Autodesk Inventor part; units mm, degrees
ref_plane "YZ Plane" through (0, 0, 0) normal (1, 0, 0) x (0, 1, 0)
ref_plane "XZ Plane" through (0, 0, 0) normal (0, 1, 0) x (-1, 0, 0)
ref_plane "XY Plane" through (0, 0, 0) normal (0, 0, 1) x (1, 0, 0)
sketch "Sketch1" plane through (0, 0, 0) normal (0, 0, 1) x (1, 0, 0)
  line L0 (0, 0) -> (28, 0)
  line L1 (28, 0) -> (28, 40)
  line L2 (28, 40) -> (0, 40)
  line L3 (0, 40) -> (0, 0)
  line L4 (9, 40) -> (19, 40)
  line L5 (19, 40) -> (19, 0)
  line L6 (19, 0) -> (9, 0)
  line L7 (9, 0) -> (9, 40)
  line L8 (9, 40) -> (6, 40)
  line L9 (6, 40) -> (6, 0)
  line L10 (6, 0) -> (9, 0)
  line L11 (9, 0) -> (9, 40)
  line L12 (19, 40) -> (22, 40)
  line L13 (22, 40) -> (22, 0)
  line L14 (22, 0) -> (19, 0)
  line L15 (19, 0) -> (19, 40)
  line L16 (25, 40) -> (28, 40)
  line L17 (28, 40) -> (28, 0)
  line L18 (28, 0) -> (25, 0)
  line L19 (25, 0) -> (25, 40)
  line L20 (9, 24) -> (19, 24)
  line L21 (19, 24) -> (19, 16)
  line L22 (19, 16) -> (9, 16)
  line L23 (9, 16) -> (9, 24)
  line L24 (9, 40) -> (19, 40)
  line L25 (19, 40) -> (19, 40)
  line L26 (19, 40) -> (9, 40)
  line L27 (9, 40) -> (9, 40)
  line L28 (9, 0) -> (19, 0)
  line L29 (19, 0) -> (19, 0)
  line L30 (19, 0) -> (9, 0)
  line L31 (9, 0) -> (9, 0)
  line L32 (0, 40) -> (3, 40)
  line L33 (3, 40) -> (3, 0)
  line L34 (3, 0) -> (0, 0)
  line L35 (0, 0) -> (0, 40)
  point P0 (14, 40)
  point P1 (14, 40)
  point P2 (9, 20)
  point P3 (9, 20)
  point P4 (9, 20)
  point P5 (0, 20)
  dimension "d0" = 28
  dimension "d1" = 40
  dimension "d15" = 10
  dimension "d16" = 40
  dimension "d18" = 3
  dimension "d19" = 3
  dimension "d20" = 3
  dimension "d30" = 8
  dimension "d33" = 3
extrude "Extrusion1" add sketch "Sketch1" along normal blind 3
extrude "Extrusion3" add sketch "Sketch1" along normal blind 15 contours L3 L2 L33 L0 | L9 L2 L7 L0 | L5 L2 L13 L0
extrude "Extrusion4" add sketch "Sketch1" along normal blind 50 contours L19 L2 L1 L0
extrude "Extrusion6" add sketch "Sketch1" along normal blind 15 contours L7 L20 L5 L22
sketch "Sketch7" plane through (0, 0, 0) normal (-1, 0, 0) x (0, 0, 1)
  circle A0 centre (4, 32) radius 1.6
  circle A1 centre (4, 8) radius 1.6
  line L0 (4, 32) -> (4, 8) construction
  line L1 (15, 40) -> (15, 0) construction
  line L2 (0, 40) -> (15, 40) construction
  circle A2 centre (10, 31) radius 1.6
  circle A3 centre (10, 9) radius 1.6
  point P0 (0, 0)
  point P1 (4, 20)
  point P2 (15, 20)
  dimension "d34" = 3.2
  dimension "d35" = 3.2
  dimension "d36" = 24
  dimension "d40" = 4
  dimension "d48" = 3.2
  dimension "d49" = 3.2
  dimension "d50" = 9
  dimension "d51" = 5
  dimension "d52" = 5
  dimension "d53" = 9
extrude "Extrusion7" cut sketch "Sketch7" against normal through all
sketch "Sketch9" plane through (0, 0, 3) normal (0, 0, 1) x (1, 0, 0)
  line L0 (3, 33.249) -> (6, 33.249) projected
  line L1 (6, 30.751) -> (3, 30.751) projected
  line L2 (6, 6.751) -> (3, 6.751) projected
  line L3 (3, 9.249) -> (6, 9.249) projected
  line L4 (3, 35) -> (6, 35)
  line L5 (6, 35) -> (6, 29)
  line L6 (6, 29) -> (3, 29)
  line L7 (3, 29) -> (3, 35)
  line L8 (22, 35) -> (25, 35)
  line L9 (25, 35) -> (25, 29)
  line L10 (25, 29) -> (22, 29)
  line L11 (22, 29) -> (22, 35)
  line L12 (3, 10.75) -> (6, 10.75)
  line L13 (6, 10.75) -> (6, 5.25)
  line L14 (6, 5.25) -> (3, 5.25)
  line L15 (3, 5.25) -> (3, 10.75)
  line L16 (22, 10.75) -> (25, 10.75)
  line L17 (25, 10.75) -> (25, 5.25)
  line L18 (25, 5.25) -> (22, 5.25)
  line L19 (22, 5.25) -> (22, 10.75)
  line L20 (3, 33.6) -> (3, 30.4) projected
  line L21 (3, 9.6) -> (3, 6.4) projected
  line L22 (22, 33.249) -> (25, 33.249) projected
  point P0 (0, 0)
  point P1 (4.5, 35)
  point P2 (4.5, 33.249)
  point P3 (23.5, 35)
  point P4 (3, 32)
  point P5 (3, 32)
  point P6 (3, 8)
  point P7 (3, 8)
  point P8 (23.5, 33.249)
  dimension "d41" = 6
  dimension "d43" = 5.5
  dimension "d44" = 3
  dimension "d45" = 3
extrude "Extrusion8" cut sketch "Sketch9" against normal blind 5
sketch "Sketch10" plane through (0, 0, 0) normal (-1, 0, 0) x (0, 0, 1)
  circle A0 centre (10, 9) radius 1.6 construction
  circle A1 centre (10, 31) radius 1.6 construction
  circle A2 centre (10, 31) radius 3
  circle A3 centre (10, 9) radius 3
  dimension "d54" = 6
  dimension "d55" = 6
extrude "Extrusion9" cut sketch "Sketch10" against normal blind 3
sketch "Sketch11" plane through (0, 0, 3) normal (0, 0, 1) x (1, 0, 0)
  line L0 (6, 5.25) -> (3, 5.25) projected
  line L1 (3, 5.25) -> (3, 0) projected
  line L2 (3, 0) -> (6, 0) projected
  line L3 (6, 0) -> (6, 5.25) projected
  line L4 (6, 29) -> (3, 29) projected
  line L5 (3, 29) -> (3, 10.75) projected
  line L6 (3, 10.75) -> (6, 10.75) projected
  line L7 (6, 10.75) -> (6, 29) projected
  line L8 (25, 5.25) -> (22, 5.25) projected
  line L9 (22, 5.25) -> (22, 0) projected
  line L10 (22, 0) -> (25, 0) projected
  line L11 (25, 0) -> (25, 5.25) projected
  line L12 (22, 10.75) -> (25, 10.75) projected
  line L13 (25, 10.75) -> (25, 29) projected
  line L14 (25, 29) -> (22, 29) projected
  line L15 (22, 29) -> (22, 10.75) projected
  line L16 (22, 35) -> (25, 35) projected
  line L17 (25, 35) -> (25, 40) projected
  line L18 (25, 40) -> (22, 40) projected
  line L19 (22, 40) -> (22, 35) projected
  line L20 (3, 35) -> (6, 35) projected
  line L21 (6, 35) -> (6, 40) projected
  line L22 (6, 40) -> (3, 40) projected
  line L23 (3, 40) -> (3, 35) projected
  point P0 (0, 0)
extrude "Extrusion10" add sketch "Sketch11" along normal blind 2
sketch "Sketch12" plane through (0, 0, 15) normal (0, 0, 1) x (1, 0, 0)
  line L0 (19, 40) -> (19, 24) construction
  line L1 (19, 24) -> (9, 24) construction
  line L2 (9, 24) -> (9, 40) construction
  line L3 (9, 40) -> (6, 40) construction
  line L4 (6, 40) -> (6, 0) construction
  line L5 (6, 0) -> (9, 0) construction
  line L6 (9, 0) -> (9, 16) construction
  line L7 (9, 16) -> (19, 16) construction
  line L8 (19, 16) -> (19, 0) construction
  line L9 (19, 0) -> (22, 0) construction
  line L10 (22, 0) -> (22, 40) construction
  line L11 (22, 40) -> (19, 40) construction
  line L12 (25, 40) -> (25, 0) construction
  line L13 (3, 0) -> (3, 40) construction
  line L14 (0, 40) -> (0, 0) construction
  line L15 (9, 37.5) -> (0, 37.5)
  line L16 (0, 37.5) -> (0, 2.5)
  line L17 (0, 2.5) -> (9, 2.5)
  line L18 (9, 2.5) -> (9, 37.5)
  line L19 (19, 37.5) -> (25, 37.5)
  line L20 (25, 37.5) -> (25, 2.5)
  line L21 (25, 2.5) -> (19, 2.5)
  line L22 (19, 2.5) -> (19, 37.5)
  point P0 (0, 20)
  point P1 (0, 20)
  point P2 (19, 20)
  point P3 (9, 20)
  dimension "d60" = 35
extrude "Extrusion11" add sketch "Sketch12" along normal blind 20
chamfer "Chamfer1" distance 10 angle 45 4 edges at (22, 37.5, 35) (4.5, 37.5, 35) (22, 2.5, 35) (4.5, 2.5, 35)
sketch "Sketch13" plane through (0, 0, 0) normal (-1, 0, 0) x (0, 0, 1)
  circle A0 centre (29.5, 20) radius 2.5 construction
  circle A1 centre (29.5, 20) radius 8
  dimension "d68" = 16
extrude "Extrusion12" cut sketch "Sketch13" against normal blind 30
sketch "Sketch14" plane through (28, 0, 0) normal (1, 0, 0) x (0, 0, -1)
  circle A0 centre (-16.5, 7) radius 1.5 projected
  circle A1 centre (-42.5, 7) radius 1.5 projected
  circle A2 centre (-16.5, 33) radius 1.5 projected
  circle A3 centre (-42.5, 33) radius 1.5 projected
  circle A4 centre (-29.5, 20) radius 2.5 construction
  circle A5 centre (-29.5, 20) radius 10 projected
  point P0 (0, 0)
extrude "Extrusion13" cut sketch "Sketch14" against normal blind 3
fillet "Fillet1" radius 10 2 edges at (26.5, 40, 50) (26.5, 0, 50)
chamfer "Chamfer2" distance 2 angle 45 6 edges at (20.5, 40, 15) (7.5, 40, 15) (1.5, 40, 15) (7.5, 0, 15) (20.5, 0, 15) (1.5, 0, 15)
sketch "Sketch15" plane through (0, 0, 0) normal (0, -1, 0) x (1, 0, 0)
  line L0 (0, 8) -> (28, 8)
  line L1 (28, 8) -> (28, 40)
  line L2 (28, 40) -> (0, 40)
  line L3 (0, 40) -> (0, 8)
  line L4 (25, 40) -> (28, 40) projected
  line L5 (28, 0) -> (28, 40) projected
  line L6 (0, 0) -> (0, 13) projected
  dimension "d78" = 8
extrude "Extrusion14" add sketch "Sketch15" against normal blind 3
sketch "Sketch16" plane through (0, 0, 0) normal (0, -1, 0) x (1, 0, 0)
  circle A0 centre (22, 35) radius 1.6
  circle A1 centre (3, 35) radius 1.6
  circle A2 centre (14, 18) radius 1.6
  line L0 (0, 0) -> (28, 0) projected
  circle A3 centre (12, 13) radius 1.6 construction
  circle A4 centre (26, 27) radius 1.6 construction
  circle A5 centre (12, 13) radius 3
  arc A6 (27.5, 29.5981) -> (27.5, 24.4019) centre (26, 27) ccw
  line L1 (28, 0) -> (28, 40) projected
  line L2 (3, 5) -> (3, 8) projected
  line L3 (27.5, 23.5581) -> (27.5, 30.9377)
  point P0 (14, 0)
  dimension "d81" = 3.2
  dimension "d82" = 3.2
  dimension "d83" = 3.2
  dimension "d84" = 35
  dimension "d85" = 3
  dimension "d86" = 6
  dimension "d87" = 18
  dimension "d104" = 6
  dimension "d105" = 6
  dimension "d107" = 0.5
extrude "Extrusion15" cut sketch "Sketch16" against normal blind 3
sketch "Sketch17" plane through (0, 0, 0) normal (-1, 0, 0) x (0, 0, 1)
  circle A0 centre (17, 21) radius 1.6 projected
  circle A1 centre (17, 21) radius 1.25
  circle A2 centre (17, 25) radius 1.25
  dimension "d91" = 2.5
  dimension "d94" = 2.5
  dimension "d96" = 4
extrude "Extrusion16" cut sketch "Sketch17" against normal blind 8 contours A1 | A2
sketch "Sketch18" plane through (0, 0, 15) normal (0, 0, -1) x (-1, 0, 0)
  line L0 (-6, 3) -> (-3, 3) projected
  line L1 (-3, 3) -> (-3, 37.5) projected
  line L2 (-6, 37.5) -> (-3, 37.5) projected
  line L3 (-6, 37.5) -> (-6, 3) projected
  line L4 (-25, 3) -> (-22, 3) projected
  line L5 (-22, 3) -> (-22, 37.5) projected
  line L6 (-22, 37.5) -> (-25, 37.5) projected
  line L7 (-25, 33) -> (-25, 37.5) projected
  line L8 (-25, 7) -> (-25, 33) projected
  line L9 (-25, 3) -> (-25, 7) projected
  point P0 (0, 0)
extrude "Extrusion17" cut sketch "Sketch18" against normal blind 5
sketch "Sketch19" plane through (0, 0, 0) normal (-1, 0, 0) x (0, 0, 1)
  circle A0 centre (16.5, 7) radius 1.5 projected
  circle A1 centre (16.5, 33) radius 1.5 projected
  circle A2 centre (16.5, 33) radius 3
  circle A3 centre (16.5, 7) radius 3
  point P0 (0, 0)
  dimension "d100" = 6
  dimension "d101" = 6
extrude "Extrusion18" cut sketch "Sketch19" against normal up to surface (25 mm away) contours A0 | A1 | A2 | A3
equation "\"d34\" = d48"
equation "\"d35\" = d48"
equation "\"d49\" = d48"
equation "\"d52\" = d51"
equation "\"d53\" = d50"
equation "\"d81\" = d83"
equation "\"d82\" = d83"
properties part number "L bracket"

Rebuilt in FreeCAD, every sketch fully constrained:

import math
import FreeCAD as App
import Part
import Sketcher
Q = App.Units.Quantity


def edges_at(feature, points):
    """Names of the edges that pass closest to the given points."""
    edges = feature.Shape.Edges
    near = lambda p: min(range(len(edges)), key=lambda i: edges[i].distToShape(Part.Vertex(*p))[0])
    return sorted({f"Edge{near(p) + 1}" for p in points})

doc = App.newDocument("Part")
body = doc.addObject("PartDesign::Body", "Body")

# Sketch on XY plane
sketch1 = doc.addObject("Sketcher::SketchObject", "Sketch")
body.addObject(sketch1)
sketch1.AttachmentSupport = (doc.XY_Plane, [""])
sketch1.MapMode = "FlatFace"
sketch1.addGeometry(Part.LineSegment(App.Vector(0, 40, 0), App.Vector(0, 0, 0)), False)
sketch1.addGeometry(Part.LineSegment(App.Vector(0, 0, 0), App.Vector(28, 0, 0)), False)
sketch1.addGeometry(Part.LineSegment(App.Vector(28, 0, 0), App.Vector(28, 40, 0)), False)
sketch1.addGeometry(Part.LineSegment(App.Vector(28, 40, 0), App.Vector(0, 40, 0)), False)
sketch1.addConstraint(Sketcher.Constraint("Coincident", 0, 2, 1, 1))
sketch1.addConstraint(Sketcher.Constraint("Coincident", 1, 2, 2, 1))
sketch1.addConstraint(Sketcher.Constraint("Coincident", 2, 2, 3, 1))
sketch1.addConstraint(Sketcher.Constraint("Coincident", 3, 2, 0, 1))
sketch1.addConstraint(Sketcher.Constraint("Vertical", 0))
sketch1.addConstraint(Sketcher.Constraint("Horizontal", 1))
sketch1.addConstraint(Sketcher.Constraint("Vertical", 2))
sketch1.addConstraint(Sketcher.Constraint("Horizontal", 3))
sketch1.addConstraint(Sketcher.Constraint("Coincident", 0, 2, -1, 1))
sketch1.addConstraint(Sketcher.Constraint("DistanceX", 1, 1, 1, 2, Q("28 mm")))
sketch1.addConstraint(Sketcher.Constraint("DistanceY", 0, 2, 0, 1, Q("40 mm")))
pad1 = doc.addObject("PartDesign::Pad", "Pad")
body.addObject(pad1)
pad1.Profile = sketch1
pad1.Length = 3

# Sketch on XY plane
sketch2 = doc.addObject("Sketcher::SketchObject", "Sketch001")
body.addObject(sketch2)
sketch2.AttachmentSupport = (doc.XY_Plane, [""])
sketch2.MapMode = "FlatFace"
sketch2.addGeometry(Part.LineSegment(App.Vector(0, 40, 0), App.Vector(0, 0, 0)), False)
sketch2.addGeometry(Part.LineSegment(App.Vector(0, 0, 0), App.Vector(3, 0, 0)), False)
sketch2.addGeometry(Part.LineSegment(App.Vector(3, 0, 0), App.Vector(3, 40, 0)), False)
sketch2.addGeometry(Part.LineSegment(App.Vector(3, 40, 0), App.Vector(0, 40, 0)), False)
sketch2.addGeometry(Part.LineSegment(App.Vector(6, 40, 0), App.Vector(6, 0, 0)), False)
sketch2.addGeometry(Part.LineSegment(App.Vector(6, 0, 0), App.Vector(9, 0, 0)), False)
sketch2.addGeometry(Part.LineSegment(App.Vector(9, 0, 0), App.Vector(9, 40, 0)), False)
sketch2.addGeometry(Part.LineSegment(App.Vector(9, 40, 0), App.Vector(6, 40, 0)), False)
sketch2.addGeometry(Part.LineSegment(App.Vector(19, 40, 0), App.Vector(19, 0, 0)), False)
sketch2.addGeometry(Part.LineSegment(App.Vector(19, 0, 0), App.Vector(22, 0, 0)), False)
sketch2.addGeometry(Part.LineSegment(App.Vector(22, 0, 0), App.Vector(22, 40, 0)), False)
sketch2.addGeometry(Part.LineSegment(App.Vector(22, 40, 0), App.Vector(19, 40, 0)), False)
sketch2.addConstraint(Sketcher.Constraint("Coincident", 0, 2, 1, 1))
sketch2.addConstraint(Sketcher.Constraint("Coincident", 1, 2, 2, 1))
sketch2.addConstraint(Sketcher.Constraint("Coincident", 2, 2, 3, 1))
sketch2.addConstraint(Sketcher.Constraint("Coincident", 3, 2, 0, 1))
sketch2.addConstraint(Sketcher.Constraint("Coincident", 4, 2, 5, 1))
sketch2.addConstraint(Sketcher.Constraint("Coincident", 5, 2, 6, 1))
sketch2.addConstraint(Sketcher.Constraint("Coincident", 6, 2, 7, 1))
sketch2.addConstraint(Sketcher.Constraint("Coincident", 7, 2, 4, 1))
sketch2.addConstraint(Sketcher.Constraint("Coincident", 8, 2, 9, 1))
sketch2.addConstraint(Sketcher.Constraint("Coincident", 9, 2, 10, 1))
sketch2.addConstraint(Sketcher.Constraint("Coincident", 10, 2, 11, 1))
sketch2.addConstraint(Sketcher.Constraint("Coincident", 11, 2, 8, 1))
sketch2.addConstraint(Sketcher.Constraint("Vertical", 0))
sketch2.addConstraint(Sketcher.Constraint("Horizontal", 1))
sketch2.addConstraint(Sketcher.Constraint("Vertical", 2))
sketch2.addConstraint(Sketcher.Constraint("Horizontal", 3))
sketch2.addConstraint(Sketcher.Constraint("Vertical", 4))
sketch2.addConstraint(Sketcher.Constraint("Horizontal", 5))
sketch2.addConstraint(Sketcher.Constraint("Vertical", 6))
sketch2.addConstraint(Sketcher.Constraint("Horizontal", 7))
sketch2.addConstraint(Sketcher.Constraint("Vertical", 8))
sketch2.addConstraint(Sketcher.Constraint("Horizontal", 9))
sketch2.addConstraint(Sketcher.Constraint("Vertical", 10))
sketch2.addConstraint(Sketcher.Constraint("Horizontal", 11))
sketch2.addConstraint(Sketcher.Constraint("Coincident", 0, 2, -1, 1))
sketch2.addConstraint(Sketcher.Constraint("PointOnObject", 4, 2, -1))
sketch2.addConstraint(Sketcher.Constraint("PointOnObject", 8, 2, -1))
sketch2.addConstraint(Sketcher.Constraint("Horizontal", 3, 2, 6, 2))
sketch2.addConstraint(Sketcher.Constraint("Horizontal", 7, 2, 10, 2))
sketch2.addConstraint(Sketcher.Constraint("Equal", 3, 5))
sketch2.addConstraint(Sketcher.Constraint("Equal", 7, 9))
sketch2.addConstraint(Sketcher.Constraint("DistanceX", 1, 1, 1, 2, Q("3 mm")))
sketch2.addConstraint(Sketcher.Constraint("DistanceY", 0, 2, 0, 1, Q("40 mm")))
sketch2.addConstraint(Sketcher.Constraint("DistanceX", 1, 2, 4, 2, Q("3 mm")))
sketch2.addConstraint(Sketcher.Constraint("DistanceX", 5, 2, 8, 2, Q("10 mm")))
pad2 = doc.addObject("PartDesign::Pad", "Pad001")
body.addObject(pad2)
pad2.Profile = sketch2
pad2.Length = 15

# Sketch on XY plane
sketch3 = doc.addObject("Sketcher::SketchObject", "Sketch002")
body.addObject(sketch3)
sketch3.AttachmentSupport = (doc.XY_Plane, [""])
sketch3.MapMode = "FlatFace"
sketch3.addGeometry(Part.LineSegment(App.Vector(25, 40, 0), App.Vector(25, 0, 0)), False)
sketch3.addGeometry(Part.LineSegment(App.Vector(25, 0, 0), App.Vector(28, 0, 0)), False)
sketch3.addGeometry(Part.LineSegment(App.Vector(28, 0, 0), App.Vector(28, 40, 0)), False)
sketch3.addGeometry(Part.LineSegment(App.Vector(28, 40, 0), App.Vector(25, 40, 0)), False)
sketch3.addConstraint(Sketcher.Constraint("Coincident", 0, 2, 1, 1))
sketch3.addConstraint(Sketcher.Constraint("Coincident", 1, 2, 2, 1))
sketch3.addConstraint(Sketcher.Constraint("Coincident", 2, 2, 3, 1))
sketch3.addConstraint(Sketcher.Constraint("Coincident", 3, 2, 0, 1))
sketch3.addConstraint(Sketcher.Constraint("Vertical", 0))
sketch3.addConstraint(Sketcher.Constraint("Horizontal", 1))
sketch3.addConstraint(Sketcher.Constraint("Vertical", 2))
sketch3.addConstraint(Sketcher.Constraint("Horizontal", 3))
sketch3.addConstraint(Sketcher.Constraint("PointOnObject", 0, 2, -1))
sketch3.addConstraint(Sketcher.Constraint("DistanceX", 1, 1, 1, 2, Q("3 mm")))
sketch3.addConstraint(Sketcher.Constraint("DistanceY", 0, 2, 0, 1, Q("40 mm")))
sketch3.addConstraint(Sketcher.Constraint("DistanceX", -1, 1, 1, 2, Q("28 mm")))
pad3 = doc.addObject("PartDesign::Pad", "Pad002")
body.addObject(pad3)
pad3.Profile = sketch3
pad3.Length = 50

# Sketch on XY plane
sketch4 = doc.addObject("Sketcher::SketchObject", "Sketch003")
body.addObject(sketch4)
sketch4.AttachmentSupport = (doc.XY_Plane, [""])
sketch4.MapMode = "FlatFace"
sketch4.addGeometry(Part.LineSegment(App.Vector(9, 24, 0), App.Vector(9, 16, 0)), False)
sketch4.addGeometry(Part.LineSegment(App.Vector(9, 16, 0), App.Vector(19, 16, 0)), False)
sketch4.addGeometry(Part.LineSegment(App.Vector(19, 16, 0), App.Vector(19, 24, 0)), False)
sketch4.addGeometry(Part.LineSegment(App.Vector(19, 24, 0), App.Vector(9, 24, 0)), False)
sketch4.addConstraint(Sketcher.Constraint("Coincident", 0, 2, 1, 1))
sketch4.addConstraint(Sketcher.Constraint("Coincident", 1, 2, 2, 1))
sketch4.addConstraint(Sketcher.Constraint("Coincident", 2, 2, 3, 1))
sketch4.addConstraint(Sketcher.Constraint("Coincident", 3, 2, 0, 1))
sketch4.addConstraint(Sketcher.Constraint("Vertical", 0))
sketch4.addConstraint(Sketcher.Constraint("Horizontal", 1))
sketch4.addConstraint(Sketcher.Constraint("Vertical", 2))
sketch4.addConstraint(Sketcher.Constraint("Horizontal", 3))
sketch4.addConstraint(Sketcher.Constraint("DistanceX", 1, 1, 1, 2, Q("10 mm")))
sketch4.addConstraint(Sketcher.Constraint("DistanceY", 0, 2, 0, 1, Q("8 mm")))
sketch4.addConstraint(Sketcher.Constraint("DistanceX", -1, 1, 0, 2, Q("9 mm")))
sketch4.addConstraint(Sketcher.Constraint("DistanceY", -1, 1, 0, 2, Q("16 mm")))
pad4 = doc.addObject("PartDesign::Pad", "Pad003")
body.addObject(pad4)
pad4.Profile = sketch4
pad4.Length = 15

# Sketch on YZ plane
sketch5 = doc.addObject("Sketcher::SketchObject", "Sketch004")
body.addObject(sketch5)
sketch5.AttachmentSupport = (doc.YZ_Plane, [""])
sketch5.MapMode = "FlatFace"
sketch5.addGeometry(Part.Circle(App.Vector(32, 4, 0), App.Vector(0, 0, 1), 1.6), False)
sketch5.addGeometry(Part.Circle(App.Vector(8, 4, 0), App.Vector(0, 0, 1), 1.6), False)
sketch5.addGeometry(Part.Circle(App.Vector(31, 10, 0), App.Vector(0, 0, 1), 1.6), False)
sketch5.addGeometry(Part.Circle(App.Vector(9, 10, 0), App.Vector(0, 0, 1), 1.6), False)
sketch5.addConstraint(Sketcher.Constraint("Equal", 0, 1))
sketch5.addConstraint(Sketcher.Constraint("Equal", 1, 2))
sketch5.addConstraint(Sketcher.Constraint("Equal", 2, 3))
sketch5.addConstraint(Sketcher.Constraint("Horizontal", 0, 3, 1, 3))
sketch5.addConstraint(Sketcher.Constraint("Horizontal", 2, 3, 3, 3))
sketch5.addConstraint(Sketcher.Constraint("Diameter", 0, Q("3.2 mm")))
sketch5.addConstraint(Sketcher.Constraint("DistanceY", -1, 1, 0, 3, Q("4 mm")))
sketch5.addConstraint(Sketcher.Constraint("DistanceX", -1, 1, 3, 3, Q("9 mm")))
sketch5.addConstraint(Sketcher.Constraint("DistanceX", 1, 3, 0, 3, Q("24 mm")))
sketch5.addConstraint(Sketcher.Constraint("DistanceX", -1, 1, 0, 3, Q("32 mm")))
sketch5.addConstraint(Sketcher.Constraint("DistanceX", -1, 1, 2, 3, Q("31 mm")))
sketch5.addConstraint(Sketcher.Constraint("DistanceY", -1, 1, 2, 3, Q("10 mm")))
pocket1 = doc.addObject("PartDesign::Pocket", "Pocket")
body.addObject(pocket1)
pocket1.Profile = sketch5
pocket1.Type = "ThroughAll"
pocket1.Reversed = True

# Sketch on XY plane
sketch6 = doc.addObject("Sketcher::SketchObject", "Sketch005")
body.addObject(sketch6)
sketch6.AttachmentSupport = (doc.XY_Plane, [""])
sketch6.MapMode = "FlatFace"
sketch6.AttachmentOffset = App.Placement(App.Vector(0, 0, 3), App.Rotation())
sketch6.addGeometry(Part.LineSegment(App.Vector(3, 29, 0), App.Vector(6, 29, 0)), False)
sketch6.addGeometry(Part.LineSegment(App.Vector(6, 29, 0), App.Vector(6, 35, 0)), False)
sketch6.addGeometry(Part.LineSegment(App.Vector(6, 35, 0), App.Vector(3, 35, 0)), False)
sketch6.addGeometry(Part.LineSegment(App.Vector(3, 35, 0), App.Vector(3, 29, 0)), False)
sketch6.addGeometry(Part.LineSegment(App.Vector(6, 5.2, 0), App.Vector(6, 10.8, 0)), False)
sketch6.addGeometry(Part.LineSegment(App.Vector(6, 10.8, 0), App.Vector(3, 10.8, 0)), False)
sketch6.addGeometry(Part.LineSegment(App.Vector(3, 10.8, 0), App.Vector(3, 5.2, 0)), False)
sketch6.addGeometry(Part.LineSegment(App.Vector(3, 5.2, 0), App.Vector(6, 5.2, 0)), False)
sketch6.addGeometry(Part.LineSegment(App.Vector(25, 35, 0), App.Vector(22, 35, 0)), False)
sketch6.addGeometry(Part.LineSegment(App.Vector(22, 35, 0), App.Vector(22, 29, 0)), False)
sketch6.addGeometry(Part.LineSegment(App.Vector(22, 29, 0), App.Vector(25, 29, 0)), False)
sketch6.addGeometry(Part.LineSegment(App.Vector(25, 29, 0), App.Vector(25, 35, 0)), False)
sketch6.addGeometry(Part.LineSegment(App.Vector(25, 10.8, 0), App.Vector(22, 10.8, 0)), False)
sketch6.addGeometry(Part.LineSegment(App.Vector(22, 10.8, 0), App.Vector(22, 5.2, 0)), False)
sketch6.addGeometry(Part.LineSegment(App.Vector(22, 5.2, 0), App.Vector(25, 5.2, 0)), False)
sketch6.addGeometry(Part.LineSegment(App.Vector(25, 5.2, 0), App.Vector(25, 10.8, 0)), False)
sketch6.addConstraint(Sketcher.Constraint("Coincident", 0, 2, 1, 1))
sketch6.addConstraint(Sketcher.Constraint("Coincident", 1, 2, 2, 1))
sketch6.addConstraint(Sketcher.Constraint("Coincident", 2, 2, 3, 1))
sketch6.addConstraint(Sketcher.Constraint("Coincident", 3, 2, 0, 1))
sketch6.addConstraint(Sketcher.Constraint("Coincident", 4, 2, 5, 1))
sketch6.addConstraint(Sketcher.Constraint("Coincident", 5, 2, 6, 1))
sketch6.addConstraint(Sketcher.Constraint("Coincident", 6, 2, 7, 1))
sketch6.addConstraint(Sketcher.Constraint("Coincident", 7, 2, 4, 1))
sketch6.addConstraint(Sketcher.Constraint("Coincident", 8, 2, 9, 1))
sketch6.addConstraint(Sketcher.Constraint("Coincident", 9, 2, 10, 1))
sketch6.addConstraint(Sketcher.Constraint("Coincident", 10, 2, 11, 1))
sketch6.addConstraint(Sketcher.Constraint("Coincident", 11, 2, 8, 1))
sketch6.addConstraint(Sketcher.Constraint("Coincident", 12, 2, 13, 1))
sketch6.addConstraint(Sketcher.Constraint("Coincident", 13, 2, 14, 1))
sketch6.addConstraint(Sketcher.Constraint("Coincident", 14, 2, 15, 1))
sketch6.addConstraint(Sketcher.Constraint("Coincident", 15, 2, 12, 1))
sketch6.addConstraint(Sketcher.Constraint("Horizontal", 0))
sketch6.addConstraint(Sketcher.Constraint("Vertical", 1))
sketch6.addConstraint(Sketcher.Constraint("Horizontal", 2))
sketch6.addConstraint(Sketcher.Constraint("Vertical", 3))
sketch6.addConstraint(Sketcher.Constraint("Vertical", 4))
sketch6.addConstraint(Sketcher.Constraint("Horizontal", 5))
sketch6.addConstraint(Sketcher.Constraint("Vertical", 6))
sketch6.addConstraint(Sketcher.Constraint("Horizontal", 7))
sketch6.addConstraint(Sketcher.Constraint("Horizontal", 8))
sketch6.addConstraint(Sketcher.Constraint("Vertical", 9))
sketch6.addConstraint(Sketcher.Constraint("Horizontal", 10))
sketch6.addConstraint(Sketcher.Constraint("Vertical", 11))
sketch6.addConstraint(Sketcher.Constraint("Horizontal", 12))
sketch6.addConstraint(Sketcher.Constraint("Vertical", 13))
sketch6.addConstraint(Sketcher.Constraint("Horizontal", 14))
sketch6.addConstraint(Sketcher.Constraint("Vertical", 15))
sketch6.addConstraint(Sketcher.Constraint("Horizontal", 2, 2, 8, 2))
sketch6.addConstraint(Sketcher.Constraint("Horizontal", 3, 2, 9, 2))
sketch6.addConstraint(Sketcher.Constraint("Horizontal", 5, 2, 12, 2))
sketch6.addConstraint(Sketcher.Constraint("Horizontal", 7, 2, 13, 2))
sketch6.addConstraint(Sketcher.Constraint("Vertical", 1, 2, 4, 2))
sketch6.addConstraint(Sketcher.Constraint("Vertical", 3, 2, 5, 2))
sketch6.addConstraint(Sketcher.Constraint("Vertical", 9, 2, 12, 2))
sketch6.addConstraint(Sketcher.Constraint("Vertical", 11, 2, 14, 2))
sketch6.addConstraint(Sketcher.Constraint("Equal", 7, 8))
sketch6.addConstraint(Sketcher.Constraint("DistanceX", 0, 1, 0, 2, Q("3 mm")))
sketch6.addConstraint(Sketcher.Constraint("DistanceY", 1, 1, 1, 2, Q("6 mm")))
sketch6.addConstraint(Sketcher.Constraint("DistanceY", 4, 1, 4, 2, Q("5.5 mm")))
sketch6.addConstraint(Sketcher.Constraint("DistanceX", -1, 1, 0, 2, Q("6 mm")))
sketch6.addConstraint(Sketcher.Constraint("DistanceY", -1, 1, 0, 2, Q("29 mm")))
sketch6.addConstraint(Sketcher.Constraint("DistanceX", -1, 1, 8, 2, Q("22 mm")))
sketch6.addConstraint(Sketcher.Constraint("DistanceY", -1, 1, 4, 2, Q("10.75 mm")))
pocket2 = doc.addObject("PartDesign::Pocket", "Pocket001")
body.addObject(pocket2)
pocket2.Profile = sketch6
pocket2.Length = 5

# Sketch on YZ plane
sketch7 = doc.addObject("Sketcher::SketchObject", "Sketch006")
body.addObject(sketch7)
sketch7.AttachmentSupport = (doc.YZ_Plane, [""])
sketch7.MapMode = "FlatFace"
sketch7.addGeometry(Part.Circle(App.Vector(31, 10, 0), App.Vector(0, 0, 1), 3), False)
sketch7.addGeometry(Part.Circle(App.Vector(9, 10, 0), App.Vector(0, 0, 1), 3), False)
sketch7.addConstraint(Sketcher.Constraint("Equal", 0, 1))
sketch7.addConstraint(Sketcher.Constraint("Horizontal", 0, 3, 1, 3))
sketch7.addConstraint(Sketcher.Constraint("Diameter", 0, Q("6 mm")))
sketch7.addConstraint(Sketcher.Constraint("DistanceX", -1, 1, 0, 3, Q("31 mm")))
sketch7.addConstraint(Sketcher.Constraint("DistanceY", -1, 1, 0, 3, Q("10 mm")))
sketch7.addConstraint(Sketcher.Constraint("DistanceX", -1, 1, 1, 3, Q("9 mm")))
pocket3 = doc.addObject("PartDesign::Pocket", "Pocket002")
body.addObject(pocket3)
pocket3.Profile = sketch7
pocket3.Length = 3
pocket3.Reversed = True

# Sketch on XY plane
sketch8 = doc.addObject("Sketcher::SketchObject", "Sketch007")
body.addObject(sketch8)
sketch8.AttachmentSupport = (doc.XY_Plane, [""])
sketch8.MapMode = "FlatFace"
sketch8.AttachmentOffset = App.Placement(App.Vector(0, 0, 3), App.Rotation())
sketch8.addGeometry(Part.LineSegment(App.Vector(6, 0, 0), App.Vector(6, 5.2, 0)), False)
sketch8.addGeometry(Part.LineSegment(App.Vector(6, 5.2, 0), App.Vector(3, 5.2, 0)), False)
sketch8.addGeometry(Part.LineSegment(App.Vector(3, 5.2, 0), App.Vector(3, 0, 0)), False)
sketch8.addGeometry(Part.LineSegment(App.Vector(3, 0, 0), App.Vector(6, 0, 0)), False)
sketch8.addGeometry(Part.LineSegment(App.Vector(6, 10.8, 0), App.Vector(6, 29, 0)), False)
sketch8.addGeometry(Part.LineSegment(App.Vector(6, 29, 0), App.Vector(3, 29, 0)), False)
sketch8.addGeometry(Part.LineSegment(App.Vector(3, 29, 0), App.Vector(3, 10.8, 0)), False)
sketch8.addGeometry(Part.LineSegment(App.Vector(3, 10.8, 0), App.Vector(6, 10.8, 0)), False)
sketch8.addGeometry(Part.LineSegment(App.Vector(25, 0, 0), App.Vector(25, 5.2, 0)), False)
sketch8.addGeometry(Part.LineSegment(App.Vector(25, 5.2, 0), App.Vector(22, 5.2, 0)), False)
sketch8.addGeometry(Part.LineSegment(App.Vector(22, 5.2, 0), App.Vector(22, 0, 0)), False)
sketch8.addGeometry(Part.LineSegment(App.Vector(22, 0, 0), App.Vector(25, 0, 0)), False)
sketch8.addGeometry(Part.LineSegment(App.Vector(22, 29, 0), App.Vector(22, 10.8, 0)), False)
sketch8.addGeometry(Part.LineSegment(App.Vector(22, 10.8, 0), App.Vector(25, 10.8, 0)), False)
sketch8.addGeometry(Part.LineSegment(App.Vector(25, 10.8, 0), App.Vector(25, 29, 0)), False)
sketch8.addGeometry(Part.LineSegment(App.Vector(25, 29, 0), App.Vector(22, 29, 0)), False)
sketch8.addGeometry(Part.LineSegment(App.Vector(22, 40, 0), App.Vector(22, 35, 0)), False)
sketch8.addGeometry(Part.LineSegment(App.Vector(22, 35, 0), App.Vector(25, 35, 0)), False)
sketch8.addGeometry(Part.LineSegment(App.Vector(25, 35, 0), App.Vector(25, 40, 0)), False)
sketch8.addGeometry(Part.LineSegment(App.Vector(25, 40, 0), App.Vector(22, 40, 0)), False)
sketch8.addGeometry(Part.LineSegment(App.Vector(3, 40, 0), App.Vector(3, 35, 0)), False)
sketch8.addGeometry(Part.LineSegment(App.Vector(3, 35, 0), App.Vector(6, 35, 0)), False)
sketch8.addGeometry(Part.LineSegment(App.Vector(6, 35, 0), App.Vector(6, 40, 0)), False)
sketch8.addGeometry(Part.LineSegment(App.Vector(6, 40, 0), App.Vector(3, 40, 0)), False)
sketch8.addConstraint(Sketcher.Constraint("Coincident", 0, 2, 1, 1))
sketch8.addConstraint(Sketcher.Constraint("Coincident", 1, 2, 2, 1))
sketch8.addConstraint(Sketcher.Constraint("Coincident", 2, 2, 3, 1))
sketch8.addConstraint(Sketcher.Constraint("Coincident", 3, 2, 0, 1))
sketch8.addConstraint(Sketcher.Constraint("Coincident", 4, 2, 5, 1))
sketch8.addConstraint(Sketcher.Constraint("Coincident", 5, 2, 6, 1))
sketch8.addConstraint(Sketcher.Constraint("Coincident", 6, 2, 7, 1))
sketch8.addConstraint(Sketcher.Constraint("Coincident", 7, 2, 4, 1))
sketch8.addConstraint(Sketcher.Constraint("Coincident", 8, 2, 9, 1))
sketch8.addConstraint(Sketcher.Constraint("Coincident", 9, 2, 10, 1))
sketch8.addConstraint(Sketcher.Constraint("Coincident", 10, 2, 11, 1))
sketch8.addConstraint(Sketcher.Constraint("Coincident", 11, 2, 8, 1))
sketch8.addConstraint(Sketcher.Constraint("Coincident", 12, 2, 13, 1))
sketch8.addConstraint(Sketcher.Constraint("Coincident", 13, 2, 14, 1))
sketch8.addConstraint(Sketcher.Constraint("Coincident", 14, 2, 15, 1))
sketch8.addConstraint(Sketcher.Constraint("Coincident", 15, 2, 12, 1))
sketch8.addConstraint(Sketcher.Constraint("Coincident", 16, 2, 17, 1))
sketch8.addConstraint(Sketcher.Constraint("Coincident", 17, 2, 18, 1))
sketch8.addConstraint(Sketcher.Constraint("Coincident", 18, 2, 19, 1))
sketch8.addConstraint(Sketcher.Constraint("Coincident", 19, 2, 16, 1))
sketch8.addConstraint(Sketcher.Constraint("Coincident", 20, 2, 21, 1))
sketch8.addConstraint(Sketcher.Constraint("Coincident", 21, 2, 22, 1))
sketch8.addConstraint(Sketcher.Constraint("Coincident", 22, 2, 23, 1))
sketch8.addConstraint(Sketcher.Constraint("Coincident", 23, 2, 20, 1))
sketch8.addConstraint(Sketcher.Constraint("Vertical", 0))
sketch8.addConstraint(Sketcher.Constraint("Horizontal", 1))
sketch8.addConstraint(Sketcher.Constraint("Vertical", 2))
sketch8.addConstraint(Sketcher.Constraint("Horizontal", 3))
sketch8.addConstraint(Sketcher.Constraint("Vertical", 4))
sketch8.addConstraint(Sketcher.Constraint("Horizontal", 5))
sketch8.addConstraint(Sketcher.Constraint("Vertical", 6))
sketch8.addConstraint(Sketcher.Constraint("Horizontal", 7))
sketch8.addConstraint(Sketcher.Constraint("Vertical", 8))
sketch8.addConstraint(Sketcher.Constraint("Horizontal", 9))
sketch8.addConstraint(Sketcher.Constraint("Vertical", 10))
sketch8.addConstraint(Sketcher.Constraint("Horizontal", 11))
sketch8.addConstraint(Sketcher.Constraint("Vertical", 12))
sketch8.addConstraint(Sketcher.Constraint("Horizontal", 13))
sketch8.addConstraint(Sketcher.Constraint("Vertical", 14))
sketch8.addConstraint(Sketcher.Constraint("Horizontal", 15))
sketch8.addConstraint(Sketcher.Constraint("Vertical", 16))
sketch8.addConstraint(Sketcher.Constraint("Horizontal", 17))
sketch8.addConstraint(Sketcher.Constraint("Vertical", 18))
sketch8.addConstraint(Sketcher.Constraint("Horizontal", 19))
sketch8.addConstraint(Sketcher.Constraint("Vertical", 20))
sketch8.addConstraint(Sketcher.Constraint("Horizontal", 21))
sketch8.addConstraint(Sketcher.Constraint("Vertical", 22))
sketch8.addConstraint(Sketcher.Constraint("Horizontal", 23))
sketch8.addConstraint(Sketcher.Constraint("PointOnObject", 2, 2, -1))
sketch8.addConstraint(Sketcher.Constraint("PointOnObject", 10, 2, -1))
sketch8.addConstraint(Sketcher.Constraint("Horizontal", 1, 2, 8, 2))
sketch8.addConstraint(Sketcher.Constraint("Horizontal", 7, 2, 12, 2))
sketch8.addConstraint(Sketcher.Constraint("Horizontal", 5, 2, 14, 2))
sketch8.addConstraint(Sketcher.Constraint("Horizontal", 17, 2, 20, 2))
sketch8.addConstraint(Sketcher.Constraint("Horizontal", 19, 2, 22, 2))
sketch8.addConstraint(Sketcher.Constraint("Vertical", 3, 2, 4, 2))
sketch8.addConstraint(Sketcher.Constraint("Vertical", 2, 2, 5, 2))
sketch8.addConstraint(Sketcher.Constraint("Vertical", 10, 2, 12, 2))
sketch8.addConstraint(Sketcher.Constraint("Vertical", 11, 2, 13, 2))
sketch8.addConstraint(Sketcher.Constraint("Vertical", 15, 2, 16, 2))
sketch8.addConstraint(Sketcher.Constraint("Vertical", 14, 2, 17, 2))
sketch8.addConstraint(Sketcher.Constraint("Vertical", 6, 2, 20, 2))
sketch8.addConstraint(Sketcher.Constraint("Vertical", 7, 2, 21, 2))
sketch8.addConstraint(Sketcher.Constraint("Equal", 7, 9))
sketch8.addConstraint(Sketcher.Constraint("DistanceX", 1, 2, 1, 1, Q("3 mm")))
sketch8.addConstraint(Sketcher.Constraint("DistanceY", 16, 2, 16, 1, Q("5 mm")))
sketch8.addConstraint(Sketcher.Constraint("DistanceX", -1, 1, 0, 2, Q("6 mm")))
sketch8.addConstraint(Sketcher.Constraint("DistanceY", -1, 1, 4, 2, Q("29 mm")))
sketch8.addConstraint(Sketcher.Constraint("DistanceX", -1, 1, 8, 2, Q("25 mm")))
sketch8.addConstraint(Sketcher.Constraint("DistanceY", -1, 1, 16, 2, Q("35 mm")))
sketch8.addConstraint(Sketcher.Constraint("DistanceY", 0, 1, 0, 2, Q("5.25 mm")))
sketch8.addConstraint(Sketcher.Constraint("DistanceY", 4, 1, 4, 2, Q("18.25 mm")))
pad5 = doc.addObject("PartDesign::Pad", "Pad004")
body.addObject(pad5)
pad5.Profile = sketch8
pad5.Length = 2

# Sketch on XY plane
sketch9 = doc.addObject("Sketcher::SketchObject", "Sketch008")
body.addObject(sketch9)
sketch9.AttachmentSupport = (doc.XY_Plane, [""])
sketch9.MapMode = "FlatFace"
sketch9.AttachmentOffset = App.Placement(App.Vector(0, 0, 15), App.Rotation())
sketch9.addGeometry(Part.LineSegment(App.Vector(9, 2, 0), App.Vector(9, 38, 0)), False)
sketch9.addGeometry(Part.LineSegment(App.Vector(9, 38, 0), App.Vector(0, 38, 0)), False)
sketch9.addGeometry(Part.LineSegment(App.Vector(0, 38, 0), App.Vector(0, 2, 0)), False)
sketch9.addGeometry(Part.LineSegment(App.Vector(0, 2, 0), App.Vector(9, 2, 0)), False)
sketch9.addGeometry(Part.LineSegment(App.Vector(25, 38, 0), App.Vector(19, 38, 0)), False)
sketch9.addGeometry(Part.LineSegment(App.Vector(19, 38, 0), App.Vector(19, 2, 0)), False)
sketch9.addGeometry(Part.LineSegment(App.Vector(19, 2, 0), App.Vector(25, 2, 0)), False)
sketch9.addGeometry(Part.LineSegment(App.Vector(25, 2, 0), App.Vector(25, 38, 0)), False)
sketch9.addConstraint(Sketcher.Constraint("Coincident", 0, 2, 1, 1))
sketch9.addConstraint(Sketcher.Constraint("Coincident", 1, 2, 2, 1))
sketch9.addConstraint(Sketcher.Constraint("Coincident", 2, 2, 3, 1))
sketch9.addConstraint(Sketcher.Constraint("Coincident", 3, 2, 0, 1))
sketch9.addConstraint(Sketcher.Constraint("Coincident", 4, 2, 5, 1))
sketch9.addConstraint(Sketcher.Constraint("Coincident", 5, 2, 6, 1))
sketch9.addConstraint(Sketcher.Constraint("Coincident", 6, 2, 7, 1))
sketch9.addConstraint(Sketcher.Constraint("Coincident", 7, 2, 4, 1))
sketch9.addConstraint(Sketcher.Constraint("Vertical", 0))
sketch9.addConstraint(Sketcher.Constraint("Horizontal", 1))
sketch9.addConstraint(Sketcher.Constraint("Vertical", 2))
sketch9.addConstraint(Sketcher.Constraint("Horizontal", 3))
sketch9.addConstraint(Sketcher.Constraint("Horizontal", 4))
sketch9.addConstraint(Sketcher.Constraint("Vertical", 5))
sketch9.addConstraint(Sketcher.Constraint("Horizontal", 6))
sketch9.addConstraint(Sketcher.Constraint("Vertical", 7))
sketch9.addConstraint(Sketcher.Constraint("PointOnObject", 1, 2, -2))
sketch9.addConstraint(Sketcher.Constraint("Horizontal", 1, 2, 4, 2))
sketch9.addConstraint(Sketcher.Constraint("Horizontal", 3, 2, 5, 2))
sketch9.addConstraint(Sketcher.Constraint("DistanceY", 0, 1, 0, 2, Q("35 mm")))
sketch9.addConstraint(Sketcher.Constraint("DistanceX", 1, 2, 1, 1, Q("9 mm")))
sketch9.addConstraint(Sketcher.Constraint("DistanceX", 4, 2, 4, 1, Q("6 mm")))
sketch9.addConstraint(Sketcher.Constraint("DistanceX", -1, 1, 4, 2, Q("19 mm")))
sketch9.addConstraint(Sketcher.Constraint("DistanceY", -1, 1, 0, 2, Q("37.5 mm")))
pad6 = doc.addObject("PartDesign::Pad", "Pad005")
body.addObject(pad6)
pad6.Profile = sketch9
pad6.Length = 20
doc.recompute()

chamfer = doc.addObject("PartDesign::Chamfer", "Chamfer")
body.addObject(chamfer)
chamfer.Base = (pad6, edges_at(pad6, [
    (22, 37.5, 35),
    (4.5, 37.5, 35),
    (22, 2.5, 35),
    (4.5, 2.5, 35),
]))
chamfer.Size = 10

# Sketch on YZ plane
sketch10 = doc.addObject("Sketcher::SketchObject", "Sketch009")
body.addObject(sketch10)
sketch10.AttachmentSupport = (doc.YZ_Plane, [""])
sketch10.MapMode = "FlatFace"
sketch10.addGeometry(Part.Circle(App.Vector(20, 30, 0), App.Vector(0, 0, 1), 8), False)
sketch10.addConstraint(Sketcher.Constraint("Diameter", 0, Q("16 mm")))
sketch10.addConstraint(Sketcher.Constraint("DistanceX", -1, 1, 0, 3, Q("20 mm")))
sketch10.addConstraint(Sketcher.Constraint("DistanceY", -1, 1, 0, 3, Q("29.5 mm")))
pocket4 = doc.addObject("PartDesign::Pocket", "Pocket003")
body.addObject(pocket4)
pocket4.Profile = sketch10
pocket4.Length = 30
pocket4.Reversed = True

# Sketch on YZ plane
sketch11 = doc.addObject("Sketcher::SketchObject", "Sketch010")
body.addObject(sketch11)
sketch11.AttachmentSupport = (doc.YZ_Plane, [""])
sketch11.MapMode = "FlatFace"
sketch11.AttachmentOffset = App.Placement(App.Vector(0, 0, 28), App.Rotation())
sketch11.addGeometry(Part.Circle(App.Vector(7, 16.5, 0), App.Vector(0, 0, 1), 1.5), False)
sketch11.addGeometry(Part.Circle(App.Vector(7, 42.5, 0), App.Vector(0, 0, 1), 1.5), False)
sketch11.addGeometry(Part.Circle(App.Vector(33, 16.5, 0), App.Vector(0, 0, 1), 1.5), False)
sketch11.addGeometry(Part.Circle(App.Vector(33, 42.5, 0), App.Vector(0, 0, 1), 1.5), False)
sketch11.addGeometry(Part.Circle(App.Vector(20, 29.5, 0), App.Vector(0, 0, 1), 10), False)
sketch11.addConstraint(Sketcher.Constraint("Equal", 0, 1))
sketch11.addConstraint(Sketcher.Constraint("Equal", 1, 2))
sketch11.addConstraint(Sketcher.Constraint("Equal", 2, 3))
sketch11.addConstraint(Sketcher.Constraint("Horizontal", 0, 3, 2, 3))
sketch11.addConstraint(Sketcher.Constraint("Horizontal", 1, 3, 3, 3))
sketch11.addConstraint(Sketcher.Constraint("Vertical", 0, 3, 1, 3))
sketch11.addConstraint(Sketcher.Constraint("Vertical", 2, 3, 3, 3))
sketch11.addConstraint(Sketcher.Constraint("Diameter", 0, Q("3 mm")))
sketch11.addConstraint(Sketcher.Constraint("Diameter", 4, Q("20 mm")))
sketch11.addConstraint(Sketcher.Constraint("DistanceX", -1, 1, 0, 3, Q("7 mm")))
sketch11.addConstraint(Sketcher.Constraint("DistanceX", -1, 1, 2, 3, Q("33 mm")))
sketch11.addConstraint(Sketcher.Constraint("DistanceX", -1, 1, 4, 3, Q("20 mm")))
sketch11.addConstraint(Sketcher.Constraint("DistanceY", 0, 3, 1, 3, Q("26 mm")))
sketch11.addConstraint(Sketcher.Constraint("DistanceY", 0, 3, 4, 3, Q("13 mm")))
sketch11.addConstraint(Sketcher.Constraint("DistanceY", -1, 1, 0, 3, Q("16.5 mm")))
pocket5 = doc.addObject("PartDesign::Pocket", "Pocket004")
body.addObject(pocket5)
pocket5.Profile = sketch11
pocket5.Length = 3
doc.recompute()

fillet = doc.addObject("PartDesign::Fillet", "Fillet")
body.addObject(fillet)
fillet.Base = (pocket5, edges_at(pocket5, [(26.5, 40, 50), (26.5, 0, 50)]))
fillet.Radius = 10
doc.recompute()

chamfer2 = doc.addObject("PartDesign::Chamfer", "Chamfer001")
body.addObject(chamfer2)
chamfer2.Base = (fillet, edges_at(fillet, [
    (20.5, 40, 15),
    (7.5, 40, 15),
    (1.5, 40, 15),
    (7.5, 0, 15),
    (20.5, 0, 15),
    (1.5, 0, 15),
]))
chamfer2.Size = 2

# Sketch on XZ plane
sketch12 = doc.addObject("Sketcher::SketchObject", "Sketch011")
body.addObject(sketch12)
sketch12.AttachmentSupport = (doc.XZ_Plane, [""])
sketch12.MapMode = "FlatFace"
sketch12.addGeometry(Part.LineSegment(App.Vector(0, 40, 0), App.Vector(0, 8, 0)), False)
sketch12.addGeometry(Part.LineSegment(App.Vector(0, 8, 0), App.Vector(28, 8, 0)), False)
sketch12.addGeometry(Part.LineSegment(App.Vector(28, 8, 0), App.Vector(28, 40, 0)), False)
sketch12.addGeometry(Part.LineSegment(App.Vector(28, 40, 0), App.Vector(0, 40, 0)), False)
sketch12.addConstraint(Sketcher.Constraint("Coincident", 0, 2, 1, 1))
sketch12.addConstraint(Sketcher.Constraint("Coincident", 1, 2, 2, 1))
sketch12.addConstraint(Sketcher.Constraint("Coincident", 2, 2, 3, 1))
sketch12.addConstraint(Sketcher.Constraint("Coincident", 3, 2, 0, 1))
sketch12.addConstraint(Sketcher.Constraint("Vertical", 0))
sketch12.addConstraint(Sketcher.Constraint("Horizontal", 1))
sketch12.addConstraint(Sketcher.Constraint("Vertical", 2))
sketch12.addConstraint(Sketcher.Constraint("Horizontal", 3))
sketch12.addConstraint(Sketcher.Constraint("PointOnObject", 0, 2, -2))
sketch12.addConstraint(Sketcher.Constraint("DistanceY", -1, 1, 0, 2, Q("8 mm")))
sketch12.addConstraint(Sketcher.Constraint("DistanceX", 1, 1, 1, 2, Q("28 mm")))
sketch12.addConstraint(Sketcher.Constraint("DistanceY", 0, 2, 0, 1, Q("32 mm")))
pad7 = doc.addObject("PartDesign::Pad", "Pad006")
body.addObject(pad7)
pad7.Profile = sketch12
pad7.Length = 3
pad7.Reversed = True

# Sketch on XZ plane
sketch13 = doc.addObject("Sketcher::SketchObject", "Sketch012")
body.addObject(sketch13)
sketch13.AttachmentSupport = (doc.XZ_Plane, [""])
sketch13.MapMode = "FlatFace"
sketch13.addGeometry(Part.Circle(App.Vector(22, 35, 0), App.Vector(0, 0, 1), 1.6), False)
sketch13.addGeometry(Part.Circle(App.Vector(3, 35, 0), App.Vector(0, 0, 1), 1.6), False)
sketch13.addGeometry(Part.Circle(App.Vector(14, 18, 0), App.Vector(0, 0, 1), 1.6), False)
sketch13.addGeometry(Part.Circle(App.Vector(12, 13, 0), App.Vector(0, 0, 1), 3), False)
sketch13.addGeometry(Part.LineSegment(App.Vector(27.5, 24.4, 0), App.Vector(27.5, 29.6, 0)), False)
sketch13.addGeometry(Part.ArcOfCircle(Part.Circle(App.Vector(26, 27, 0), App.Vector(0, 0, 1), 3), math.radians(60), math.radians(300)), False)
sketch13.addConstraint(Sketcher.Constraint("Coincident", 4, 1, 5, 2))
sketch13.addConstraint(Sketcher.Constraint("Coincident", 5, 1, 4, 2))
sketch13.addConstraint(Sketcher.Constraint("Vertical", 4))
sketch13.addConstraint(Sketcher.Constraint("Equal", 0, 1))
sketch13.addConstraint(Sketcher.Constraint("Equal", 1, 2))
sketch13.addConstraint(Sketcher.Constraint("Equal", 3, 5))
sketch13.addConstraint(Sketcher.Constraint("Horizontal", 0, 3, 1, 3))
sketch13.addConstraint(Sketcher.Constraint("Diameter", 3, Q("6 mm")))
sketch13.addConstraint(Sketcher.Constraint("Diameter", 0, Q("3.2 mm")))
sketch13.addConstraint(Sketcher.Constraint("DistanceY", -1, 1, 0, 3, Q("35 mm")))
sketch13.addConstraint(Sketcher.Constraint("DistanceX", -1, 1, 1, 3, Q("3 mm")))
sketch13.addConstraint(Sketcher.Constraint("DistanceY", -1, 1, 2, 3, Q("18 mm")))
sketch13.addConstraint(Sketcher.Constraint("DistanceX", -1, 1, 0, 3, Q("22 mm")))
sketch13.addConstraint(Sketcher.Constraint("DistanceX", -1, 1, 2, 3, Q("14 mm")))
sketch13.addConstraint(Sketcher.Constraint("DistanceX", -1, 1, 3, 3, Q("12 mm")))
sketch13.addConstraint(Sketcher.Constraint("DistanceY", -1, 1, 3, 3, Q("13 mm")))
sketch13.addConstraint(Sketcher.Constraint("DistanceX", -1, 1, 5, 3, Q("26 mm")))
sketch13.addConstraint(Sketcher.Constraint("DistanceY", -1, 1, 5, 3, Q("27 mm")))
sketch13.addConstraint(Sketcher.Constraint("DistanceX", -1, 1, 4, 1, Q("27.5 mm")))
pocket6 = doc.addObject("PartDesign::Pocket", "Pocket005")
body.addObject(pocket6)
pocket6.Profile = sketch13
pocket6.Length = 3

# Sketch on YZ plane
sketch14 = doc.addObject("Sketcher::SketchObject", "Sketch013")
body.addObject(sketch14)
sketch14.AttachmentSupport = (doc.YZ_Plane, [""])
sketch14.MapMode = "FlatFace"
sketch14.addGeometry(Part.Circle(App.Vector(21, 17, 0), App.Vector(0, 0, 1), 1.2), False)
sketch14.addGeometry(Part.Circle(App.Vector(25, 17, 0), App.Vector(0, 0, 1), 1.2), False)
sketch14.addConstraint(Sketcher.Constraint("Equal", 0, 1))
sketch14.addConstraint(Sketcher.Constraint("Horizontal", 0, 3, 1, 3))
sketch14.addConstraint(Sketcher.Constraint("Diameter", 0, Q("2.5 mm")))
sketch14.addConstraint(Sketcher.Constraint("DistanceX", 0, 3, 1, 3, Q("4 mm")))
sketch14.addConstraint(Sketcher.Constraint("DistanceX", -1, 1, 0, 3, Q("21 mm")))
sketch14.addConstraint(Sketcher.Constraint("DistanceY", -1, 1, 0, 3, Q("17 mm")))
pocket7 = doc.addObject("PartDesign::Pocket", "Pocket006")
body.addObject(pocket7)
pocket7.Profile = sketch14
pocket7.Length = 8
pocket7.Reversed = True

# Sketch on XY plane
sketch15 = doc.addObject("Sketcher::SketchObject", "Sketch014")
body.addObject(sketch15)
sketch15.AttachmentSupport = (doc.XY_Plane, [""])
sketch15.MapMode = "FlatFace"
sketch15.AttachmentOffset = App.Placement(App.Vector(0, 0, 15), App.Rotation())
sketch15.addGeometry(Part.LineSegment(App.Vector(6, 37.5, 0), App.Vector(6, 3, 0)), False)
sketch15.addGeometry(Part.LineSegment(App.Vector(6, 3, 0), App.Vector(3, 3, 0)), False)
sketch15.addGeometry(Part.LineSegment(App.Vector(3, 3, 0), App.Vector(3, 37.5, 0)), False)
sketch15.addGeometry(Part.LineSegment(App.Vector(3, 37.5, 0), App.Vector(6, 37.5, 0)), False)
sketch15.addGeometry(Part.LineSegment(App.Vector(25, 37.5, 0), App.Vector(25, 3, 0)), False)
sketch15.addGeometry(Part.LineSegment(App.Vector(25, 3, 0), App.Vector(22, 3, 0)), False)
sketch15.addGeometry(Part.LineSegment(App.Vector(22, 3, 0), App.Vector(22, 37.5, 0)), False)
sketch15.addGeometry(Part.LineSegment(App.Vector(22, 37.5, 0), App.Vector(25, 37.5, 0)), False)
sketch15.addConstraint(Sketcher.Constraint("Coincident", 0, 2, 1, 1))
sketch15.addConstraint(Sketcher.Constraint("Coincident", 1, 2, 2, 1))
sketch15.addConstraint(Sketcher.Constraint("Coincident", 2, 2, 3, 1))
sketch15.addConstraint(Sketcher.Constraint("Coincident", 3, 2, 0, 1))
sketch15.addConstraint(Sketcher.Constraint("Coincident", 4, 2, 5, 1))
sketch15.addConstraint(Sketcher.Constraint("Coincident", 5, 2, 6, 1))
sketch15.addConstraint(Sketcher.Constraint("Coincident", 6, 2, 7, 1))
sketch15.addConstraint(Sketcher.Constraint("Coincident", 7, 2, 4, 1))
sketch15.addConstraint(Sketcher.Constraint("Vertical", 0))
sketch15.addConstraint(Sketcher.Constraint("Horizontal", 1))
sketch15.addConstraint(Sketcher.Constraint("Vertical", 2))
sketch15.addConstraint(Sketcher.Constraint("Horizontal", 3))
sketch15.addConstraint(Sketcher.Constraint("Vertical", 4))
sketch15.addConstraint(Sketcher.Constraint("Horizontal", 5))
sketch15.addConstraint(Sketcher.Constraint("Vertical", 6))
sketch15.addConstraint(Sketcher.Constraint("Horizontal", 7))
sketch15.addConstraint(Sketcher.Constraint("Horizontal", 1, 2, 4, 2))
sketch15.addConstraint(Sketcher.Constraint("Horizontal", 3, 2, 6, 2))
sketch15.addConstraint(Sketcher.Constraint("Equal", 3, 5))
sketch15.addConstraint(Sketcher.Constraint("DistanceX", 1, 2, 1, 1, Q("3 mm")))
sketch15.addConstraint(Sketcher.Constraint("DistanceY", 0, 2, 0, 1, Q("34.5 mm")))
sketch15.addConstraint(Sketcher.Constraint("DistanceX", -1, 1, 0, 2, Q("6 mm")))
sketch15.addConstraint(Sketcher.Constraint("DistanceY", -1, 1, 0, 2, Q("3 mm")))
sketch15.addConstraint(Sketcher.Constraint("DistanceX", -1, 1, 4, 2, Q("25 mm")))
pocket8 = doc.addObject("PartDesign::Pocket", "Pocket007")
body.addObject(pocket8)
pocket8.Profile = sketch15
pocket8.Length = 5
pocket8.Reversed = True

# Sketch on YZ plane
sketch16 = doc.addObject("Sketcher::SketchObject", "Sketch015")
body.addObject(sketch16)
sketch16.AttachmentSupport = (doc.YZ_Plane, [""])
sketch16.MapMode = "FlatFace"
sketch16.addGeometry(Part.Circle(App.Vector(7, 16.5, 0), App.Vector(0, 0, 1), 3), False)
sketch16.addGeometry(Part.Circle(App.Vector(33, 16.5, 0), App.Vector(0, 0, 1), 3), False)
sketch16.addConstraint(Sketcher.Constraint("Equal", 0, 1))
sketch16.addConstraint(Sketcher.Constraint("Horizontal", 0, 3, 1, 3))
sketch16.addConstraint(Sketcher.Constraint("Diameter", 0, Q("6 mm")))
sketch16.addConstraint(Sketcher.Constraint("DistanceX", -1, 1, 0, 3, Q("7 mm")))
sketch16.addConstraint(Sketcher.Constraint("DistanceX", -1, 1, 1, 3, Q("33 mm")))
sketch16.addConstraint(Sketcher.Constraint("DistanceY", -1, 1, 0, 3, Q("16.5 mm")))
pocket9 = doc.addObject("PartDesign::Pocket", "Pocket008")
body.addObject(pocket9)
pocket9.Profile = sketch16
pocket9.Length = 25
pocket9.Reversed = True

doc.recompute()
